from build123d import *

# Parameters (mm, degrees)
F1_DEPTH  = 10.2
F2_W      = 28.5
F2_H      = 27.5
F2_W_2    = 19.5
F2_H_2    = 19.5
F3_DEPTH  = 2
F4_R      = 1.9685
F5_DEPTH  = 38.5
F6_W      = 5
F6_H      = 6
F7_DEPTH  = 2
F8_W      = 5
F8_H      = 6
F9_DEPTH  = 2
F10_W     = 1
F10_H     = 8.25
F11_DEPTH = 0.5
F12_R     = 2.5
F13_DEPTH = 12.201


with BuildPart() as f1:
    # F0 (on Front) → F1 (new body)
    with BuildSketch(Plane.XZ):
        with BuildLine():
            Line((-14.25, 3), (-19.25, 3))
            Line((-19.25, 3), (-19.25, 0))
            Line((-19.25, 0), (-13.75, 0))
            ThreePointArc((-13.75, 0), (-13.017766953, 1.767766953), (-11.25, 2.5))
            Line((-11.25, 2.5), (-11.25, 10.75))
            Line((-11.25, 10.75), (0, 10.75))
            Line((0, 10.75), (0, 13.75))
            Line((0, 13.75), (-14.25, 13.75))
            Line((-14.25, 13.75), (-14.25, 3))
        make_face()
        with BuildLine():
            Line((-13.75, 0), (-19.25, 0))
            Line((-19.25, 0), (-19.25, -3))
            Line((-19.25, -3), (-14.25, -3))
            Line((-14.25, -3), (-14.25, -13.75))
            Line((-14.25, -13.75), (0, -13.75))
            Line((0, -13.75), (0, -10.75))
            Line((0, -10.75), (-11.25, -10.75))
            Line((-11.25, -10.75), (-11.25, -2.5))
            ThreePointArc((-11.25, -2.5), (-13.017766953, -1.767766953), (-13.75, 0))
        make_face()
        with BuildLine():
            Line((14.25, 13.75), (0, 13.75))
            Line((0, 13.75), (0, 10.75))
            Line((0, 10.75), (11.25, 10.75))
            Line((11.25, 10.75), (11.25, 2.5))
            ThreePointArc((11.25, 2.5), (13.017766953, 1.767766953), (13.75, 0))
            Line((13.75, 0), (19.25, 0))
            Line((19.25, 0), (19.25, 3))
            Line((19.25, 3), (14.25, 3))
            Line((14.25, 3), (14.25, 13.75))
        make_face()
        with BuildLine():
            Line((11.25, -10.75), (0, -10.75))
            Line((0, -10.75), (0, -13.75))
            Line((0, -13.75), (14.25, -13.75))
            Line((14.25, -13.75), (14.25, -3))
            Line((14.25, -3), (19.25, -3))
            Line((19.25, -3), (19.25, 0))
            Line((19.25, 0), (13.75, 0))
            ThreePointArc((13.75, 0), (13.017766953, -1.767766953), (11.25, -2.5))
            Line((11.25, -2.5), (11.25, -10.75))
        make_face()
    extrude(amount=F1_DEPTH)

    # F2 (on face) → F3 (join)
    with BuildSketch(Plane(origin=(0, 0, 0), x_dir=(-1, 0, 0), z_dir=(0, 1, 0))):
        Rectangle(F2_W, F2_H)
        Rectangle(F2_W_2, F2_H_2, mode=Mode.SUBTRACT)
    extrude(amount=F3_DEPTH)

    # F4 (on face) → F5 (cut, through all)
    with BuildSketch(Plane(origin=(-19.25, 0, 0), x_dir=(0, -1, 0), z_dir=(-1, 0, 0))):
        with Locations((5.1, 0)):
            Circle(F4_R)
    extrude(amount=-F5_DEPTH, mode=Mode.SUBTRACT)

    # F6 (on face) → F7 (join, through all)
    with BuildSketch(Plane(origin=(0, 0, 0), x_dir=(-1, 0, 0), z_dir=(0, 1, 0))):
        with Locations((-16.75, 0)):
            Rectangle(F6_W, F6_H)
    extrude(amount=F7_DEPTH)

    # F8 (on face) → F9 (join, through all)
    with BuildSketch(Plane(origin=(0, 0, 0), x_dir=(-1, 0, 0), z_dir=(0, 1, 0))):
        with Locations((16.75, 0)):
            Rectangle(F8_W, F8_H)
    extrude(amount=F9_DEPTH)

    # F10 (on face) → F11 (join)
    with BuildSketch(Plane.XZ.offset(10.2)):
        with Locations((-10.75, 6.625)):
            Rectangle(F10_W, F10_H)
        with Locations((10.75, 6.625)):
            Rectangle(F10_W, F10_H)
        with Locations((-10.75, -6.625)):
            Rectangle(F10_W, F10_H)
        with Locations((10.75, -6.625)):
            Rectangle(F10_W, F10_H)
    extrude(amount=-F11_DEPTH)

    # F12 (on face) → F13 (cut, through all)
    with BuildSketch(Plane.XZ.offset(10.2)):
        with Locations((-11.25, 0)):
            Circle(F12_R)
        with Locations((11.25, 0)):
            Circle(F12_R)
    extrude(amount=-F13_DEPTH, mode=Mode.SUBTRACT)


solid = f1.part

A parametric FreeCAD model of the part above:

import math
import FreeCAD as App
import Part
import Sketcher

V = App.Vector


def add_polygon(sketch, points):
    """Adds a closed chain of lines whose ends are joined by coincident constraints."""
    first, n = sketch.GeometryCount, len(points)
    for a, b in zip(points, points[1:] + points[:1]):
        sketch.addGeometry(Part.LineSegment(App.Vector(*a, 0), App.Vector(*b, 0)), False)
    for i in range(n):
        sketch.addConstraint(Sketcher.Constraint("Coincident", first + i, 2, first + (i + 1) % n, 1))

doc = App.newDocument("Part")
body = doc.addObject("PartDesign::Body", "Body")

sketch1 = doc.addObject("Sketcher::SketchObject", "Sketch")
body.addObject(sketch1)
sketch1.AttachmentSupport = (doc.XZ_Plane, [""])
sketch1.MapMode = "FlatFace"
add_polygon(sketch1, [(-14.2, 3), (-19.2, 3), (-19.2, -3), (-14.2, -3), (-14.2, -13.8), (14.2, -13.8), (14.2, -3), (19.2, -3), (19.2, 3), (14.2, 3), (14.2, 13.8), (-14.2, 13.8)])
sketch1.addGeometry(Part.LineSegment(V(-11.2, -10.8, 0), V(-11.2, -2.5, 0)), False)
sketch1.addGeometry(Part.ArcOfCircle(Part.Circle(V(-11.2, 0, 0), V(0, 0, 1), 2.5), math.radians(180), math.radians(270)), False)
sketch1.addGeometry(Part.ArcOfCircle(Part.Circle(V(-11.2, 0, 0), V(0, 0, 1), 2.5), math.radians(90), math.radians(180)), False)
sketch1.addGeometry(Part.LineSegment(V(-11.2, 2.5, 0), V(-11.2, 10.8, 0)), False)
sketch1.addGeometry(Part.LineSegment(V(-11.2, 10.8, 0), V(11.2, 10.8, 0)), False)
sketch1.addGeometry(Part.LineSegment(V(11.2, 10.8, 0), V(11.2, 2.5, 0)), False)
sketch1.addGeometry(Part.ArcOfCircle(Part.Circle(V(11.2, 0, 0), V(0, 0, 1), 2.5), math.radians(0), math.radians(90)), False)
sketch1.addGeometry(Part.ArcOfCircle(Part.Circle(V(11.2, 0, 0), V(0, 0, 1), 2.5), math.radians(-90), math.radians(0)), False)
sketch1.addGeometry(Part.LineSegment(V(11.2, -2.5, 0), V(11.2, -10.8, 0)), False)
sketch1.addGeometry(Part.LineSegment(V(11.2, -10.8, 0), V(-11.2, -10.8, 0)), False)
sketch1.addConstraint([
    Sketcher.Constraint("Coincident", 12, 2, 13, 2),
    Sketcher.Constraint("Tangent", 13, 1, 14, 2),
    Sketcher.Constraint("Coincident", 14, 1, 15, 1),
    Sketcher.Constraint("Coincident", 15, 2, 16, 1),
    Sketcher.Constraint("Coincident", 16, 2, 17, 1),
    Sketcher.Constraint("Coincident", 17, 2, 18, 2),
    Sketcher.Constraint("Tangent", 18, 1, 19, 2),
    Sketcher.Constraint("Coincident", 19, 1, 20, 1),
    Sketcher.Constraint("Coincident", 20, 2, 21, 1),
    Sketcher.Constraint("Coincident", 21, 2, 12, 1),
    Sketcher.Constraint("Horizontal", 0),
    Sketcher.Constraint("Vertical", 1),
    Sketcher.Constraint("Horizontal", 2),
    Sketcher.Constraint("Vertical", 3),
    Sketcher.Constraint("Horizontal", 4),
    Sketcher.Constraint("Vertical", 5),
    Sketcher.Constraint("Horizontal", 6),
    Sketcher.Constraint("Vertical", 7),
    Sketcher.Constraint("Horizontal", 8),
    Sketcher.Constraint("Vertical", 9),
    Sketcher.Constraint("Horizontal", 10),
    Sketcher.Constraint("Vertical", 11),
    Sketcher.Constraint("Vertical", 12),
    Sketcher.Constraint("Vertical", 15),
    Sketcher.Constraint("Horizontal", 16),
    Sketcher.Constraint("Vertical", 17),
    Sketcher.Constraint("Vertical", 20),
    Sketcher.Constraint("Horizontal", 21),
    Sketcher.Constraint("Equal", 13, 14),
    Sketcher.Constraint("Equal", 14, 18),
    Sketcher.Constraint("Equal", 18, 19),
    Sketcher.Constraint("Symmetric", 13, 3, 18, 3, -1, 1),
    Sketcher.Constraint("Symmetric", 0, 2, 6, 2, -1, 1),
    Sketcher.Constraint("Symmetric", 2, 2, 8, 2, -1, 1),
    Sketcher.Constraint("Symmetric", 4, 2, 10, 2, -1, 1),
    Sketcher.Constraint("Symmetric", 15, 2, 20, 2, -1, 1),
    Sketcher.Constraint("Symmetric", 2, 2, 5, 2, -2),
    Sketcher.Constraint("Symmetric", 14, 1, 17, 2, -2),
    Sketcher.Constraint("PointOnObject", 13, 1, -1),
    Sketcher.Constraint("PointOnObject", 18, 1, -1),
    Sketcher.Constraint("Vertical", 14, 3, 12, 2),
    Sketcher.Constraint("Vertical", 12, 2, 14, 1),
    Sketcher.Constraint("Radius", 13, 2.5),
    Sketcher.Constraint("DistanceX", 0, 2, 0, 1, 5.0),
    Sketcher.Constraint("DistanceY", 1, 2, 1, 1, 6.0),
    Sketcher.Constraint("DistanceX", 4, 1, 4, 2, 28.5),
    Sketcher.Constraint("DistanceX", 16, 1, 16, 2, 22.5),
    Sketcher.Constraint("DistanceY", 15, 2, 10, 2, 3.0),
    Sketcher.Constraint("DistanceY", 3, 2, 3, 1, 10.75),
])
pad1 = doc.addObject("PartDesign::Pad", "Pad")
body.addObject(pad1)
pad1.Profile = sketch1
pad1.Length = 10.2

sketch2 = doc.addObject("Sketcher::SketchObject", "Sketch001")
body.addObject(sketch2)
sketch2.AttachmentSupport = (doc.XZ_Plane, [""])
sketch2.MapMode = "FlatFace"
add_polygon(sketch2, [(14, 14), (14, -14), (-14, -14), (-14, 14)])
add_polygon(sketch2, [(-10, -10), (10, -10), (10, 10), (-10, 10)])
sketch2.addConstraint([
    Sketcher.Constraint("Vertical", 0),
    Sketcher.Constraint("Horizontal", 1),
    Sketcher.Constraint("Vertical", 2),
    Sketcher.Constraint("Horizontal", 3),
    Sketcher.Constraint("Horizontal", 4),
    Sketcher.Constraint("Vertical", 5),
    Sketcher.Constraint("Horizontal", 6),
    Sketcher.Constraint("Vertical", 7),
    Sketcher.Constraint("Symmetric", 0, 2, 2, 2, -1, 1),
    Sketcher.Constraint("Symmetric", 4, 2, 6, 2, -1, 1),
    Sketcher.Constraint("Equal", 6, 5),
    Sketcher.Constraint("DistanceX", 1, 2, 1, 1, 28.5),
    Sketcher.Constraint("DistanceX", 4, 1, 4, 2, 19.5),
    Sketcher.Constraint("DistanceY", 0, 2, 0, 1, 27.5),
])
pad2 = doc.addObject("PartDesign::Pad", "Pad001")
body.addObject(pad2)
pad2.Profile = sketch2
pad2.Length = 2
pad2.Reversed = True

sketch3 = doc.addObject("Sketcher::SketchObject", "Sketch002")
body.addObject(sketch3)
sketch3.AttachmentSupport = (doc.YZ_Plane, [""])
sketch3.MapMode = "FlatFace"
sketch3.AttachmentOffset = App.Placement(V(0, 0, -19.25), App.Rotation())
sketch3.addGeometry(Part.Circle(V(-5.1, 0, 0), V(0, 0, 1), 2), False)
sketch3.addConstraint([
    Sketcher.Constraint("PointOnObject", 0, 3, -1),
    Sketcher.Constraint("Diameter", 0, 3.937),
    Sketcher.Constraint("DistanceX", 0, 3, -1, 1, 5.1),
])
pocket1 = doc.addObject("PartDesign::Pocket", "Pocket")
body.addObject(pocket1)
pocket1.Profile = sketch3
pocket1.Type = "ThroughAll"
pocket1.Reversed = True

sketch4 = doc.addObject("Sketcher::SketchObject", "Sketch003")
body.addObject(sketch4)
sketch4.AttachmentSupport = (doc.XZ_Plane, [""])
sketch4.MapMode = "FlatFace"
add_polygon(sketch4, [(19, 3), (19, -3), (14, -3), (14, 3)])
sketch4.addConstraint([
    Sketcher.Constraint("Vertical", 0),
    Sketcher.Constraint("Horizontal", 1),
    Sketcher.Constraint("Vertical", 2),
    Sketcher.Constraint("Horizontal", 3),
    Sketcher.Constraint("DistanceX", 1, 2, 1, 1, 5.0),
    Sketcher.Constraint("DistanceY", 0, 2, 0, 1, 6.0),
    Sketcher.Constraint("DistanceY", 0, 2, -1, 1, 3.0),
    Sketcher.Constraint("DistanceX", -1, 1, 0, 2, 19.25),
])
pad3 = doc.addObject("PartDesign::Pad", "Pad002")
body.addObject(pad3)
pad3.Profile = sketch4
pad3.Length = 2
pad3.Reversed = True

sketch5 = doc.addObject("Sketcher::SketchObject", "Sketch004")
body.addObject(sketch5)
sketch5.AttachmentSupport = (doc.XZ_Plane, [""])
sketch5.MapMode = "FlatFace"
add_polygon(sketch5, [(-14, 3), (-14, -3), (-19, -3), (-19, 3)])
sketch5.addConstraint([
    Sketcher.Constraint("Vertical", 0),
    Sketcher.Constraint("Horizontal", 1),
    Sketcher.Constraint("Vertical", 2),
    Sketcher.Constraint("Horizontal", 3),
    Sketcher.Constraint("DistanceX", 1, 2, 1, 1, 5.0),
    Sketcher.Constraint("DistanceY", 0, 2, 0, 1, 6.0),
    Sketcher.Constraint("DistanceY", 0, 2, -1, 1, 3.0),
    Sketcher.Constraint("DistanceX", 0, 2, -1, 1, 14.25),
])
pad4 = doc.addObject("PartDesign::Pad", "Pad003")
body.addObject(pad4)
pad4.Profile = sketch5
pad4.Length = 2
pad4.Reversed = True

sketch6 = doc.addObject("Sketcher::SketchObject", "Sketch005")
body.addObject(sketch6)
sketch6.AttachmentSupport = (doc.XZ_Plane, [""])
sketch6.MapMode = "FlatFace"
sketch6.AttachmentOffset = App.Placement(V(0, 0, 10.2), App.Rotation())
add_polygon(sketch6, [(-11.2, 10.8), (-11.2, 2.5), (-10.2, 2.5), (-10.2, 10.8)])
add_polygon(sketch6, [(10.2, 10.8), (10.2, 2.5), (11.2, 2.5), (11.2, 10.8)])
add_polygon(sketch6, [(-11.2, -2.5), (-11.2, -10.8), (-10.2, -10.8), (-10.2, -2.5)])
add_polygon(sketch6, [(10.2, -2.5), (10.2, -10.8), (11.2, -10.8), (11.2, -2.5)])
sketch6.addConstraint([
    Sketcher.Constraint("Vertical", 0),
    Sketcher.Constraint("Horizontal", 1),
    Sketcher.Constraint("Vertical", 2),
    Sketcher.Constraint("Horizontal", 3),
    Sketcher.Constraint("Vertical", 4),
    Sketcher.Constraint("Horizontal", 5),
    Sketcher.Constraint("Vertical", 6),
    Sketcher.Constraint("Horizontal", 7),
    Sketcher.Constraint("Vertical", 8),
    Sketcher.Constraint("Horizontal", 9),
    Sketcher.Constraint("Vertical", 10),
    Sketcher.Constraint("Horizontal", 11),
    Sketcher.Constraint("Vertical", 12),
    Sketcher.Constraint("Horizontal", 13),
    Sketcher.Constraint("Vertical", 14),
    Sketcher.Constraint("Horizontal", 15),
    Sketcher.Constraint("Symmetric", 6, 2, 8, 2, -1, 1),
    Sketcher.Constraint("Symmetric", 4, 2, 10, 2, -1, 1),
    Sketcher.Constraint("Symmetric", 2, 2, 12, 2, -1, 1),
    Sketcher.Constraint("Symmetric", 0, 2, 14, 2, -1, 1),
    Sketcher.Constraint("Symmetric", 1, 2, 4, 2, -2),
    Sketcher.Constraint("Symmetric", 3, 2, 6, 2, -2),
    Sketcher.Constraint("DistanceX", 1, 1, 1, 2, 1.0),
    Sketcher.Constraint("DistanceY", 10, 2, 1, 2, 5.0),
    Sketcher.Constraint("DistanceY", 0, 2, 0, 1, 8.25),
    Sketcher.Constraint("DistanceX", 1, 2, 4, 2, 20.5),
])
pad5 = doc.addObject("PartDesign::Pad", "Pad004")
body.addObject(pad5)
pad5.Profile = sketch6
pad5.Length = 0.5
pad5.Reversed = True

sketch7 = doc.addObject("Sketcher::SketchObject", "Sketch006")
body.addObject(sketch7)
sketch7.AttachmentSupport = (doc.XZ_Plane, [""])
sketch7.MapMode = "FlatFace"
sketch7.AttachmentOffset = App.Placement(V(0, 0, 10.2), App.Rotation())
sketch7.addGeometry([
    Part.Circle(V(-11.2, 0, 0), V(0, 0, 1), 2.5),
    Part.Circle(V(11.2, 0, 0), V(0, 0, 1), 2.5),
], False)
sketch7.addConstraint([
    Sketcher.Constraint("Equal", 0, 1),
    Sketcher.Constraint("Symmetric", 0, 3, 1, 3, -1, 1),
    Sketcher.Constraint("PointOnObject", 0, 3, -1),
    Sketcher.Constraint("Diameter", 0, 5.0),
    Sketcher.Constraint("DistanceX", 0, 3, 1, 3, 22.5),
])
pocket2 = doc.addObject("PartDesign::Pocket", "Pocket001")
body.addObject(pocket2)
pocket2.Profile = sketch7
pocket2.Type = "ThroughAll"

doc.recompute()
